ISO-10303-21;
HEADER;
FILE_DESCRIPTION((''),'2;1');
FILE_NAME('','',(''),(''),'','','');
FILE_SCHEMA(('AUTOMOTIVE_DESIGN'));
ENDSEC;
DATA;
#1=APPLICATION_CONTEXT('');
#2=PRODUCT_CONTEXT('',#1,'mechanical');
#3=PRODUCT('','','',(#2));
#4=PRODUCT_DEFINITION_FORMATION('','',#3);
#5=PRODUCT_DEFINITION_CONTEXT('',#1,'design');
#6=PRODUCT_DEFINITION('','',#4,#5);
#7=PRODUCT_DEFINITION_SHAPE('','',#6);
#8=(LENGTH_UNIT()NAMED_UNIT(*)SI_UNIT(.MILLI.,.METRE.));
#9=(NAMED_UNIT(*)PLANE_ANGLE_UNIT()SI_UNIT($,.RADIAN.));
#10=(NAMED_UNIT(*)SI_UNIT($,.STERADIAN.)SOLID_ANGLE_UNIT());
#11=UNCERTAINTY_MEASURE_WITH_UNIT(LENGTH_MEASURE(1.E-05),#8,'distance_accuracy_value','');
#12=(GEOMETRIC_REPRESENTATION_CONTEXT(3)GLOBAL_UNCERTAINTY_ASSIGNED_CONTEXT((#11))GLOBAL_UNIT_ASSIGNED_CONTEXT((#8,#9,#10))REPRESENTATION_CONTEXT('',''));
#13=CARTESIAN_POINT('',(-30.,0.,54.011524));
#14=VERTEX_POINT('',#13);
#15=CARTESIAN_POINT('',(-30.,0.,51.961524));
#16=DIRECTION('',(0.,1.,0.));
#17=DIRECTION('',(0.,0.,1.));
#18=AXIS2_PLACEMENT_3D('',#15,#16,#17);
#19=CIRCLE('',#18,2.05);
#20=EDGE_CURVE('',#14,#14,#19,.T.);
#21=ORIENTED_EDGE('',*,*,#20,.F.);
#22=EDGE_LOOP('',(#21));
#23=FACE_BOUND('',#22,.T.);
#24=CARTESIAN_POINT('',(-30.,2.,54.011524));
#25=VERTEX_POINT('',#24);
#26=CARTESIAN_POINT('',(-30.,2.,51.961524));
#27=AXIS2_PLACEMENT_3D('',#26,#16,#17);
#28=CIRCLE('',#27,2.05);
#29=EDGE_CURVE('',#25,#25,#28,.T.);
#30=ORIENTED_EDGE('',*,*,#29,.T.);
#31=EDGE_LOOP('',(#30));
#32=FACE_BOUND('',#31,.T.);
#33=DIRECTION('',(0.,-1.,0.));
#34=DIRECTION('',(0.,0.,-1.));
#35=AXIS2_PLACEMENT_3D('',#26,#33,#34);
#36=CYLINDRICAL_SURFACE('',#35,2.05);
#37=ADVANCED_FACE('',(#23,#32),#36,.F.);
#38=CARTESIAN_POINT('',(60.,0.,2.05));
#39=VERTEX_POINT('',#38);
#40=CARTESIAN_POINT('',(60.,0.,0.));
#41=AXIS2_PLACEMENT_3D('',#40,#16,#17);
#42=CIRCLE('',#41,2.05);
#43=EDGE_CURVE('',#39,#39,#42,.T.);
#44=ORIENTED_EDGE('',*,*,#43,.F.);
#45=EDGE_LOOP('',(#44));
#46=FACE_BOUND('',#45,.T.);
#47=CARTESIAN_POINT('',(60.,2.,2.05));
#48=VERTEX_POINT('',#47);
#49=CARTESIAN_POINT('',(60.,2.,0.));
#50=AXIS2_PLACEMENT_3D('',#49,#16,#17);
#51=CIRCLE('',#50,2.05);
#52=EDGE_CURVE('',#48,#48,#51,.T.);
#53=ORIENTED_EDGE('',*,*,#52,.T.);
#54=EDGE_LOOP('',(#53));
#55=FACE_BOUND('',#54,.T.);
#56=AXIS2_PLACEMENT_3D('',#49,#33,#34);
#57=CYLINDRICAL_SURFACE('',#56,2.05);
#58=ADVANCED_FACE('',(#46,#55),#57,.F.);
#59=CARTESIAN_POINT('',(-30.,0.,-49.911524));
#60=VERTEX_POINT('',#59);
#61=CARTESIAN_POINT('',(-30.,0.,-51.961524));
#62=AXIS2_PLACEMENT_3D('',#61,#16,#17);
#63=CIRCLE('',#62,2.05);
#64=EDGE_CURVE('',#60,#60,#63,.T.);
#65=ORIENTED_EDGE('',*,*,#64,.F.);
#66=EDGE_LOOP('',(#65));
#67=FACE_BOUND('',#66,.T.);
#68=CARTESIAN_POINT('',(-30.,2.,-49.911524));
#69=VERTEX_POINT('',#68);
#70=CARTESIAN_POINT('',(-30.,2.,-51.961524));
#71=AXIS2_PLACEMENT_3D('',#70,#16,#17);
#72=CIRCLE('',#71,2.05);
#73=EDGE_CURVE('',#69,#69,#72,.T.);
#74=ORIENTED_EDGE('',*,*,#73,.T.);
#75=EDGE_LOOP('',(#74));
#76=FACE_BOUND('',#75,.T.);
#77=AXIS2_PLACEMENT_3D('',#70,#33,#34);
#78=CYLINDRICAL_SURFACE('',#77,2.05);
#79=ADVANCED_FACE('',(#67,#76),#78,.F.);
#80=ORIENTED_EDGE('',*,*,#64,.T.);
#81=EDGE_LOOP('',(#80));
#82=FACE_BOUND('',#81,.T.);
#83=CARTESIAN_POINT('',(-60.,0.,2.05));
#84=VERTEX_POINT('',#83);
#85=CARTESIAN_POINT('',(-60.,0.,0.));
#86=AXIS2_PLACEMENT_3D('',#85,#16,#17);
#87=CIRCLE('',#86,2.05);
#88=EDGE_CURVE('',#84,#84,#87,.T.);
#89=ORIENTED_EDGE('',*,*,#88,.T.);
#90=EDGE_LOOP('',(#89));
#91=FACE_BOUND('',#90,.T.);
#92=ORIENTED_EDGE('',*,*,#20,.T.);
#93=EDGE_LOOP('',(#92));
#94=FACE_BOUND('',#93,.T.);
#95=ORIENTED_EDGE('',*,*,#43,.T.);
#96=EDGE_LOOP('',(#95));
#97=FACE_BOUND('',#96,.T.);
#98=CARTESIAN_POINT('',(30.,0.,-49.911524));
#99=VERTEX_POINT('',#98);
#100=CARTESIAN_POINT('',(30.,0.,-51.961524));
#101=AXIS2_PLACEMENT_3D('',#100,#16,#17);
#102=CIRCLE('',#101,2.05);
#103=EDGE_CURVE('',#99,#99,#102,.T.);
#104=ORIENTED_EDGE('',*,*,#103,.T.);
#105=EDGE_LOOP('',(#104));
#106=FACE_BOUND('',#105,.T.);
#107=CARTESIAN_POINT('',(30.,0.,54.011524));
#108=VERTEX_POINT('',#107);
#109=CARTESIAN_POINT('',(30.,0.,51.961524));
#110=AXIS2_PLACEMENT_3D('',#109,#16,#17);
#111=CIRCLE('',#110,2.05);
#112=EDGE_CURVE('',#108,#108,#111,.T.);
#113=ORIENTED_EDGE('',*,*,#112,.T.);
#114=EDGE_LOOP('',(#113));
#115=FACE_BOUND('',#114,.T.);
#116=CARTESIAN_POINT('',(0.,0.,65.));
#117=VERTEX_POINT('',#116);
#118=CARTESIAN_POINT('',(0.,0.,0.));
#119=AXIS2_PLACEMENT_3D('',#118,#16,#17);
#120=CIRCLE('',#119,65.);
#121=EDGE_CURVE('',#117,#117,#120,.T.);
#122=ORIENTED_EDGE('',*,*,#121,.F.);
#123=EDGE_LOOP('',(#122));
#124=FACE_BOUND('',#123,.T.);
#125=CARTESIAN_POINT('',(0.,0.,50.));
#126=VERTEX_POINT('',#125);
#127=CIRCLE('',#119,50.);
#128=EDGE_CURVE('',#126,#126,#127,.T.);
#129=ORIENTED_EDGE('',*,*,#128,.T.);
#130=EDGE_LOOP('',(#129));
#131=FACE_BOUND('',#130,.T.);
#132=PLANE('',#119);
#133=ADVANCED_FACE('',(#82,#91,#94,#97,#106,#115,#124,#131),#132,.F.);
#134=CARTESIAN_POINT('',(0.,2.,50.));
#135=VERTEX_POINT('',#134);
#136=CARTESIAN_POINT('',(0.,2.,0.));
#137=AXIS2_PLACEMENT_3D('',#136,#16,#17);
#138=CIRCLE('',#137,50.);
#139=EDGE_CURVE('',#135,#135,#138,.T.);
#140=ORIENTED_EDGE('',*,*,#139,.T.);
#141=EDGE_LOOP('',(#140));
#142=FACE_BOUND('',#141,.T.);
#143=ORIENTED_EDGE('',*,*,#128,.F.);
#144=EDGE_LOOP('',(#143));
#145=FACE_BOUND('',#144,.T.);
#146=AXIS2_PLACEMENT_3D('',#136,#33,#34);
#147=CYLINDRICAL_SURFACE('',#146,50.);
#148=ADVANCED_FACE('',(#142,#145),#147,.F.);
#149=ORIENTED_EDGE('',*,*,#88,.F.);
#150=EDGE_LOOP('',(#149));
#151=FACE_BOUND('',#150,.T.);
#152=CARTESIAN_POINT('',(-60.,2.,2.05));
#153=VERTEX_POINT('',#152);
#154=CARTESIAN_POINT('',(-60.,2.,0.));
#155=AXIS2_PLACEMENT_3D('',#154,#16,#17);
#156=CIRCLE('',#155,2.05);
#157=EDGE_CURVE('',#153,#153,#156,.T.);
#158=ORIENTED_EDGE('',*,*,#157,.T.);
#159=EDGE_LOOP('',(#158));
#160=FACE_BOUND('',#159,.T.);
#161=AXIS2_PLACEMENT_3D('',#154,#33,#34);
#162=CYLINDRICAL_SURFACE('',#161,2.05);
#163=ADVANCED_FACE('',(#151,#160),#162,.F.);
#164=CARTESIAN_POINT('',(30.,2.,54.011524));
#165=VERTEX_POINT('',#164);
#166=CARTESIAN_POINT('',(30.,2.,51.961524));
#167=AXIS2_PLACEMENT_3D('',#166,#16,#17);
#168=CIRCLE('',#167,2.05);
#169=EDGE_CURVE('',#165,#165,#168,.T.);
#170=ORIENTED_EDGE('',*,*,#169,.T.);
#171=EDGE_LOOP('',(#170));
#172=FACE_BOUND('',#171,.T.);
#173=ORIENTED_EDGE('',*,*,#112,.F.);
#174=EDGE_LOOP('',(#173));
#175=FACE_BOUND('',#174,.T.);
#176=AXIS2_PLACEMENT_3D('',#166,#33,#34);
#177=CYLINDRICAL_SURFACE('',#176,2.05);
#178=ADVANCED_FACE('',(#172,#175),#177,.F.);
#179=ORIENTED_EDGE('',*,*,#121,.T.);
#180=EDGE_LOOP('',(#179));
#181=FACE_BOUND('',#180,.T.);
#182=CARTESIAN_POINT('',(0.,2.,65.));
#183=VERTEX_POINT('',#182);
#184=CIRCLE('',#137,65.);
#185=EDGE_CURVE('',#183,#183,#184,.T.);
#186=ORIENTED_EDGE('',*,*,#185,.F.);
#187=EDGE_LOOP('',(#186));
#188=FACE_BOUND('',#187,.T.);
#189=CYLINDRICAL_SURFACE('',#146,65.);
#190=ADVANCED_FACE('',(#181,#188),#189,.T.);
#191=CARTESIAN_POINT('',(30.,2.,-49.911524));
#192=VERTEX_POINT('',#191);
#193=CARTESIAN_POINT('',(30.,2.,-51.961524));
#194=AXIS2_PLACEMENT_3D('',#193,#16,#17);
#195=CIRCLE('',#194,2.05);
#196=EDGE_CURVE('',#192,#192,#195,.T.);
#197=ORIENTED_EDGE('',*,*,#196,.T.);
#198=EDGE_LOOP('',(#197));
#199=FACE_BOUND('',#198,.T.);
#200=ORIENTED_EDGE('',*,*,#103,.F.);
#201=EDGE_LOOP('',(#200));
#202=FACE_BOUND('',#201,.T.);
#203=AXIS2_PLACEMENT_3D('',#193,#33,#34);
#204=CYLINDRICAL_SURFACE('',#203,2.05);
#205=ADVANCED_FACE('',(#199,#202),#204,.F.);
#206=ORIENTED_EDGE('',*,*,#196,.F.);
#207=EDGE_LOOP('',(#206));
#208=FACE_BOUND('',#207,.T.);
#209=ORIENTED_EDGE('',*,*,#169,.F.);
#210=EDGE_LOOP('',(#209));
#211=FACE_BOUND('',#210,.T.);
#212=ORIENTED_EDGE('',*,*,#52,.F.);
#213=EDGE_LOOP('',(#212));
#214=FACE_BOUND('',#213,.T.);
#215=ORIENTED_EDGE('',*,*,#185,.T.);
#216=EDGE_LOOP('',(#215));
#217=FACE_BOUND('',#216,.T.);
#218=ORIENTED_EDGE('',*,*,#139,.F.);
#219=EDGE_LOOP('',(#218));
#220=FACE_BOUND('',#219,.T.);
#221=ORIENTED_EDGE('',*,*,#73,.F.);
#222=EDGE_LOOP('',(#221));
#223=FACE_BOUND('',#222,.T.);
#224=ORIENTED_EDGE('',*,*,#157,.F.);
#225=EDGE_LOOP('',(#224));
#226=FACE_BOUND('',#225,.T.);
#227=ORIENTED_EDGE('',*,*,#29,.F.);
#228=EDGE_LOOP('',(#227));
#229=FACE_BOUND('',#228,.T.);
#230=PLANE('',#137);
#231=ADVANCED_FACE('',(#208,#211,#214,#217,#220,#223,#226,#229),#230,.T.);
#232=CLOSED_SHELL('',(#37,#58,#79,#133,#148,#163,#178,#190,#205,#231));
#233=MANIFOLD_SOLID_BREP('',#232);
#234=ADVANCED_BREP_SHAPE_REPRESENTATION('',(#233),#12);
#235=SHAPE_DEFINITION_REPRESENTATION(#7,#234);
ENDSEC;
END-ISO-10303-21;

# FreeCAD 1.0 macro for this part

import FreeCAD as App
import Part
import Sketcher
Q = App.Units.Quantity

doc = App.newDocument("Part")
body = doc.addObject("PartDesign::Body", "Body")

sketch1 = body.newObject("Sketcher::SketchObject", "Sketch")
sketch1.AttachmentSupport = (doc.getObject("XZ_Plane"), [""])
sketch1.MapMode = "FlatFace"
sketch1.addGeometry([
    Part.Circle(App.Vector(0, 0, 0), App.Vector(0, 0, 1), 65),
    Part.Circle(App.Vector(-30, -52, 0), App.Vector(0, 0, 1), 2),
    Part.Circle(App.Vector(-60, 0, 0), App.Vector(0, 0, 1), 2),
    Part.Circle(App.Vector(-30, 52, 0), App.Vector(0, 0, 1), 2),
    Part.Circle(App.Vector(30, -52, 0), App.Vector(0, 0, 1), 2),
    Part.Circle(App.Vector(60, 0, 0), App.Vector(0, 0, 1), 2),
    Part.Circle(App.Vector(0, 0, 0), App.Vector(0, 0, 1), 50),
    Part.Circle(App.Vector(30, 52, 0), App.Vector(0, 0, 1), 2),
], False)
sketch1.addConstraint([
    Sketcher.Constraint("Coincident", 0, 3, -1, 1),
    Sketcher.Constraint("Coincident", 6, 3, -1, 1),
    Sketcher.Constraint("Equal", 1, 2),
    Sketcher.Constraint("Equal", 2, 3),
    Sketcher.Constraint("Equal", 3, 4),
    Sketcher.Constraint("Equal", 4, 5),
    Sketcher.Constraint("Equal", 5, 7),
    Sketcher.Constraint("Symmetric", 3, 3, 4, 3, -1, 1),
    Sketcher.Constraint("Symmetric", 2, 3, 5, 3, -1, 1),
    Sketcher.Constraint("Symmetric", 1, 3, 7, 3, -1, 1),
    Sketcher.Constraint("Symmetric", 1, 3, 4, 3, -2),
    Sketcher.Constraint("PointOnObject", 2, 3, -1),
    Sketcher.Constraint("Diameter", 0, Q("130 mm")),
    Sketcher.Constraint("Diameter", 6, Q("100 mm")),
    Sketcher.Constraint("Diameter", 1, Q("4.1 mm")),
    Sketcher.Constraint("DistanceX", 1, 3, -1, 1, Q("30 mm")),
    Sketcher.Constraint("DistanceX", 2, 3, -1, 1, Q("60 mm")),
    Sketcher.Constraint("DistanceY", 1, 3, 3, 3, Q("103.923048 mm")),
])
pad1 = body.newObject("PartDesign::Pad", "Pad")
pad1.Profile = sketch1
pad1.Length = 2
pad1.Reversed = True

doc.recompute()
